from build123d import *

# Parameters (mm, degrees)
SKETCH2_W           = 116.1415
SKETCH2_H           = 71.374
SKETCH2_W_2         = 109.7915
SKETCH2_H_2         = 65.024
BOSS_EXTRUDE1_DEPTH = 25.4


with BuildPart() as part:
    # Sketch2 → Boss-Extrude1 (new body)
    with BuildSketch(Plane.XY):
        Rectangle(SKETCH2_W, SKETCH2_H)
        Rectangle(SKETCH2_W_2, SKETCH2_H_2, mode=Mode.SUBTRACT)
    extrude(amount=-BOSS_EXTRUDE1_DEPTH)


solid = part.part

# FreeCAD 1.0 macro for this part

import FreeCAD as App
import Part
import Sketcher

V = App.Vector
Q = App.Units.Quantity

doc = App.newDocument("Part")
params = doc.addObject("Spreadsheet::Sheet", "Params")
for row, (alias, value) in enumerate([
    ("sketch1_height", "2.81 in"),
    ("sketch1_height2", "2.56 in"),
    ("pad1_length", "1 in"),
], start=1):
    params.set(f"A{row}", alias)
    params.set(f"B{row}", "=" + value)
    params.setAlias(f"B{row}", alias)

body = doc.addObject("PartDesign::Body", "Body")

# Sketch on XY plane
sketch1 = body.newObject("Sketcher::SketchObject", "Sketch")
sketch1.AttachmentSupport = (doc.getObject("XY_Plane"), [""])
sketch1.MapMode = "FlatFace"
sketch1.addGeometry([
    Part.LineSegment(V(-58, 36, 0), V(-58, -36, 0)),  # 0
    Part.LineSegment(V(-58, -36, 0), V(58, -36, 0)),  # 1
    Part.LineSegment(V(58, -36, 0), V(58, 36, 0)),  # 2
    Part.LineSegment(V(58, 36, 0), V(-58, 36, 0)),  # 3
    Part.LineSegment(V(55, -33, 0), V(-55, -33, 0)),  # 4
    Part.LineSegment(V(-55, -33, 0), V(-55, 33, 0)),  # 5
    Part.LineSegment(V(-55, 33, 0), V(55, 33, 0)),  # 6
    Part.LineSegment(V(55, 33, 0), V(55, -33, 0)),  # 7
], False)
sketch1.addConstraint([
    Sketcher.Constraint("Coincident", 0, 2, 1, 1),
    Sketcher.Constraint("Coincident", 1, 2, 2, 1),
    Sketcher.Constraint("Coincident", 2, 2, 3, 1),
    Sketcher.Constraint("Coincident", 3, 2, 0, 1),
    Sketcher.Constraint("Coincident", 4, 2, 5, 1),
    Sketcher.Constraint("Coincident", 5, 2, 6, 1),
    Sketcher.Constraint("Coincident", 6, 2, 7, 1),
    Sketcher.Constraint("Coincident", 7, 2, 4, 1),
    Sketcher.Constraint("Vertical", 0),
    Sketcher.Constraint("Horizontal", 1),
    Sketcher.Constraint("Vertical", 2),
    Sketcher.Constraint("Horizontal", 3),
    Sketcher.Constraint("Horizontal", 4),
    Sketcher.Constraint("Vertical", 5),
    Sketcher.Constraint("Horizontal", 6),
    Sketcher.Constraint("Vertical", 7),
    Sketcher.Constraint("Symmetric", 0, 2, 2, 2, -1, 1),
    Sketcher.Constraint("Symmetric", 4, 2, 6, 2, -1, 1),
    Sketcher.Constraint("DistanceY", 0, 2, 0, 1, Q("2.81 in")),
    Sketcher.Constraint("DistanceY", 5, 1, 5, 2, Q("2.56 in")),
    Sketcher.Constraint("DistanceX", 1, 1, 1, 2, Q("4.5725 in")),
    Sketcher.Constraint("DistanceX", 4, 2, 4, 1, Q("4.3225 in")),
])
sketch1.setExpression("Constraints[18]", "Params.sketch1_height")
sketch1.setExpression("Constraints[19]", "Params.sketch1_height2")
pad1 = body.newObject("PartDesign::Pad", "Pad")
pad1.Profile = sketch1
pad1.setExpression("Length", "Params.pad1_length")
pad1.Reversed = True

doc.recompute()
